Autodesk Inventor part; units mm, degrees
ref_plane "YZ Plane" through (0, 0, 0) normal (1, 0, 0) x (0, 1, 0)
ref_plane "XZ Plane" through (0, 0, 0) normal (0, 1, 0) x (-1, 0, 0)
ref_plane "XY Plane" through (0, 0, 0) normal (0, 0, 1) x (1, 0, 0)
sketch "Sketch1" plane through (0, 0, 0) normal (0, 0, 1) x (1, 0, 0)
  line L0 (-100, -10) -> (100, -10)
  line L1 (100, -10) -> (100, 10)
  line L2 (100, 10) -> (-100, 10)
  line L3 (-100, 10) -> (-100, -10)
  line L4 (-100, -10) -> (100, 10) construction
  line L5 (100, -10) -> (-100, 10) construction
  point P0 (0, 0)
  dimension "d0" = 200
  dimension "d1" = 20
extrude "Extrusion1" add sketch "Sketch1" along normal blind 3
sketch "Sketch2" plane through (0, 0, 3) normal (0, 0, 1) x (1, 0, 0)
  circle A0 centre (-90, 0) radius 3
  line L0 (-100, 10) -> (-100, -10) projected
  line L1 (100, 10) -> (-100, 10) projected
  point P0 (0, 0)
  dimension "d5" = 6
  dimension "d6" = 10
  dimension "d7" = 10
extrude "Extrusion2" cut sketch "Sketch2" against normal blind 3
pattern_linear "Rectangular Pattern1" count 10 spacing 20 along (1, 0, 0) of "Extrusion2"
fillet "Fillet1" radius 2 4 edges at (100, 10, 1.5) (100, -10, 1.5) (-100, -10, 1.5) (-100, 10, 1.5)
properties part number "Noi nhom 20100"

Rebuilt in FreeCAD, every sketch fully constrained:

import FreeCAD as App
import Part
import Sketcher

V = App.Vector


def edges_at(feature, points):
    """Names of the edges that pass closest to the given points."""
    edges = feature.Shape.Edges
    near = lambda p: min(range(len(edges)), key=lambda i: edges[i].distToShape(Part.Vertex(*p))[0])
    return sorted({f"Edge{near(p) + 1}" for p in points})


def add_polygon(sketch, points):
    """Adds a closed chain of lines whose ends are joined by coincident constraints."""
    first, n = sketch.GeometryCount, len(points)
    for a, b in zip(points, points[1:] + points[:1]):
        sketch.addGeometry(Part.LineSegment(App.Vector(*a, 0), App.Vector(*b, 0)), False)
    for i in range(n):
        sketch.addConstraint(Sketcher.Constraint("Coincident", first + i, 2, first + (i + 1) % n, 1))

doc = App.newDocument("Part")
params = doc.addObject("Spreadsheet::Sheet", "Params")
for row, (alias, value) in enumerate([
    ("sketch1_width", "200 mm"),
    ("sketch1_height", "20 mm"),
    ("pad1_length", "3 mm"),
    ("sketch2_diameter", "6 mm"),
    ("pocket1_length", "3 mm"),
    ("linearpattern_pitch", "20 mm"),
    ("fillet_radius", "2 mm"),
], start=1):
    params.set(f"A{row}", alias)
    params.set(f"B{row}", "=" + value)
    params.setAlias(f"B{row}", alias)

body = doc.addObject("PartDesign::Body", "Body")

# Sketch on XY plane
sketch1 = body.newObject("Sketcher::SketchObject", "Sketch")
sketch1.AttachmentSupport = (doc.getObject("XY_Plane"), [""])
sketch1.MapMode = "FlatFace"
add_polygon(sketch1, [(-100, 10), (-100, -10), (100, -10), (100, 10)])  # lines 0-3
sketch1.addConstraint([
    Sketcher.Constraint("Vertical", 0),
    Sketcher.Constraint("Horizontal", 1),
    Sketcher.Constraint("Vertical", 2),
    Sketcher.Constraint("Horizontal", 3),
    Sketcher.Constraint("Symmetric", 0, 2, 2, 2, -1, 1),
    Sketcher.Constraint("DistanceX", 1, 1, 1, 2, 200.0),
    Sketcher.Constraint("DistanceY", 0, 2, 0, 1, 20.0),
])
sketch1.setExpression("Constraints[9]", "Params.sketch1_width")
sketch1.setExpression("Constraints[10]", "Params.sketch1_height")
pad1 = body.newObject("PartDesign::Pad", "Pad")
pad1.Profile = sketch1
pad1.setExpression("Length", "Params.pad1_length")

# Sketch on XY plane
sketch2 = body.newObject("Sketcher::SketchObject", "Sketch001")
sketch2.AttachmentSupport = (doc.getObject("XY_Plane"), [""])
sketch2.MapMode = "FlatFace"
sketch2.AttachmentOffset = App.Placement(V(0, 0, 3), App.Rotation())
sketch2.addGeometry(Part.Circle(V(-90, 0, 0), V(0, 0, 1), 3), False)
sketch2.addConstraint([
    Sketcher.Constraint("PointOnObject", 0, 3, -1),
    Sketcher.Constraint("Diameter", 0, 6.0),
    Sketcher.Constraint("DistanceX", 0, 3, -1, 1, 90.0),
])
sketch2.setExpression("Constraints[1]", "Params.sketch2_diameter")
pocket1 = body.newObject("PartDesign::Pocket", "Pocket")
pocket1.Profile = sketch2
pocket1.setExpression("Length", "Params.pocket1_length")
doc.recompute()

linearpattern = body.newObject("PartDesign::LinearPattern", "LinearPattern")
linearpattern.Originals = [pocket1]
linearpattern.Direction = (doc.getObject("X_Axis"), [""])
linearpattern.Mode = "offset"
linearpattern.setExpression("Offset", "Params.linearpattern_pitch")
linearpattern.Occurrences = 10
body.Tip = linearpattern
doc.recompute()

fillet = body.newObject("PartDesign::Fillet", "Fillet")
fillet.Base = (linearpattern, edges_at(linearpattern, [
    (100, 10, 1.5),
    (100, -10, 1.5),
    (-100, -10, 1.5),
    (-100, 10, 1.5),
]))
fillet.setExpression("Radius", "Params.fillet_radius")

doc.recompute()
